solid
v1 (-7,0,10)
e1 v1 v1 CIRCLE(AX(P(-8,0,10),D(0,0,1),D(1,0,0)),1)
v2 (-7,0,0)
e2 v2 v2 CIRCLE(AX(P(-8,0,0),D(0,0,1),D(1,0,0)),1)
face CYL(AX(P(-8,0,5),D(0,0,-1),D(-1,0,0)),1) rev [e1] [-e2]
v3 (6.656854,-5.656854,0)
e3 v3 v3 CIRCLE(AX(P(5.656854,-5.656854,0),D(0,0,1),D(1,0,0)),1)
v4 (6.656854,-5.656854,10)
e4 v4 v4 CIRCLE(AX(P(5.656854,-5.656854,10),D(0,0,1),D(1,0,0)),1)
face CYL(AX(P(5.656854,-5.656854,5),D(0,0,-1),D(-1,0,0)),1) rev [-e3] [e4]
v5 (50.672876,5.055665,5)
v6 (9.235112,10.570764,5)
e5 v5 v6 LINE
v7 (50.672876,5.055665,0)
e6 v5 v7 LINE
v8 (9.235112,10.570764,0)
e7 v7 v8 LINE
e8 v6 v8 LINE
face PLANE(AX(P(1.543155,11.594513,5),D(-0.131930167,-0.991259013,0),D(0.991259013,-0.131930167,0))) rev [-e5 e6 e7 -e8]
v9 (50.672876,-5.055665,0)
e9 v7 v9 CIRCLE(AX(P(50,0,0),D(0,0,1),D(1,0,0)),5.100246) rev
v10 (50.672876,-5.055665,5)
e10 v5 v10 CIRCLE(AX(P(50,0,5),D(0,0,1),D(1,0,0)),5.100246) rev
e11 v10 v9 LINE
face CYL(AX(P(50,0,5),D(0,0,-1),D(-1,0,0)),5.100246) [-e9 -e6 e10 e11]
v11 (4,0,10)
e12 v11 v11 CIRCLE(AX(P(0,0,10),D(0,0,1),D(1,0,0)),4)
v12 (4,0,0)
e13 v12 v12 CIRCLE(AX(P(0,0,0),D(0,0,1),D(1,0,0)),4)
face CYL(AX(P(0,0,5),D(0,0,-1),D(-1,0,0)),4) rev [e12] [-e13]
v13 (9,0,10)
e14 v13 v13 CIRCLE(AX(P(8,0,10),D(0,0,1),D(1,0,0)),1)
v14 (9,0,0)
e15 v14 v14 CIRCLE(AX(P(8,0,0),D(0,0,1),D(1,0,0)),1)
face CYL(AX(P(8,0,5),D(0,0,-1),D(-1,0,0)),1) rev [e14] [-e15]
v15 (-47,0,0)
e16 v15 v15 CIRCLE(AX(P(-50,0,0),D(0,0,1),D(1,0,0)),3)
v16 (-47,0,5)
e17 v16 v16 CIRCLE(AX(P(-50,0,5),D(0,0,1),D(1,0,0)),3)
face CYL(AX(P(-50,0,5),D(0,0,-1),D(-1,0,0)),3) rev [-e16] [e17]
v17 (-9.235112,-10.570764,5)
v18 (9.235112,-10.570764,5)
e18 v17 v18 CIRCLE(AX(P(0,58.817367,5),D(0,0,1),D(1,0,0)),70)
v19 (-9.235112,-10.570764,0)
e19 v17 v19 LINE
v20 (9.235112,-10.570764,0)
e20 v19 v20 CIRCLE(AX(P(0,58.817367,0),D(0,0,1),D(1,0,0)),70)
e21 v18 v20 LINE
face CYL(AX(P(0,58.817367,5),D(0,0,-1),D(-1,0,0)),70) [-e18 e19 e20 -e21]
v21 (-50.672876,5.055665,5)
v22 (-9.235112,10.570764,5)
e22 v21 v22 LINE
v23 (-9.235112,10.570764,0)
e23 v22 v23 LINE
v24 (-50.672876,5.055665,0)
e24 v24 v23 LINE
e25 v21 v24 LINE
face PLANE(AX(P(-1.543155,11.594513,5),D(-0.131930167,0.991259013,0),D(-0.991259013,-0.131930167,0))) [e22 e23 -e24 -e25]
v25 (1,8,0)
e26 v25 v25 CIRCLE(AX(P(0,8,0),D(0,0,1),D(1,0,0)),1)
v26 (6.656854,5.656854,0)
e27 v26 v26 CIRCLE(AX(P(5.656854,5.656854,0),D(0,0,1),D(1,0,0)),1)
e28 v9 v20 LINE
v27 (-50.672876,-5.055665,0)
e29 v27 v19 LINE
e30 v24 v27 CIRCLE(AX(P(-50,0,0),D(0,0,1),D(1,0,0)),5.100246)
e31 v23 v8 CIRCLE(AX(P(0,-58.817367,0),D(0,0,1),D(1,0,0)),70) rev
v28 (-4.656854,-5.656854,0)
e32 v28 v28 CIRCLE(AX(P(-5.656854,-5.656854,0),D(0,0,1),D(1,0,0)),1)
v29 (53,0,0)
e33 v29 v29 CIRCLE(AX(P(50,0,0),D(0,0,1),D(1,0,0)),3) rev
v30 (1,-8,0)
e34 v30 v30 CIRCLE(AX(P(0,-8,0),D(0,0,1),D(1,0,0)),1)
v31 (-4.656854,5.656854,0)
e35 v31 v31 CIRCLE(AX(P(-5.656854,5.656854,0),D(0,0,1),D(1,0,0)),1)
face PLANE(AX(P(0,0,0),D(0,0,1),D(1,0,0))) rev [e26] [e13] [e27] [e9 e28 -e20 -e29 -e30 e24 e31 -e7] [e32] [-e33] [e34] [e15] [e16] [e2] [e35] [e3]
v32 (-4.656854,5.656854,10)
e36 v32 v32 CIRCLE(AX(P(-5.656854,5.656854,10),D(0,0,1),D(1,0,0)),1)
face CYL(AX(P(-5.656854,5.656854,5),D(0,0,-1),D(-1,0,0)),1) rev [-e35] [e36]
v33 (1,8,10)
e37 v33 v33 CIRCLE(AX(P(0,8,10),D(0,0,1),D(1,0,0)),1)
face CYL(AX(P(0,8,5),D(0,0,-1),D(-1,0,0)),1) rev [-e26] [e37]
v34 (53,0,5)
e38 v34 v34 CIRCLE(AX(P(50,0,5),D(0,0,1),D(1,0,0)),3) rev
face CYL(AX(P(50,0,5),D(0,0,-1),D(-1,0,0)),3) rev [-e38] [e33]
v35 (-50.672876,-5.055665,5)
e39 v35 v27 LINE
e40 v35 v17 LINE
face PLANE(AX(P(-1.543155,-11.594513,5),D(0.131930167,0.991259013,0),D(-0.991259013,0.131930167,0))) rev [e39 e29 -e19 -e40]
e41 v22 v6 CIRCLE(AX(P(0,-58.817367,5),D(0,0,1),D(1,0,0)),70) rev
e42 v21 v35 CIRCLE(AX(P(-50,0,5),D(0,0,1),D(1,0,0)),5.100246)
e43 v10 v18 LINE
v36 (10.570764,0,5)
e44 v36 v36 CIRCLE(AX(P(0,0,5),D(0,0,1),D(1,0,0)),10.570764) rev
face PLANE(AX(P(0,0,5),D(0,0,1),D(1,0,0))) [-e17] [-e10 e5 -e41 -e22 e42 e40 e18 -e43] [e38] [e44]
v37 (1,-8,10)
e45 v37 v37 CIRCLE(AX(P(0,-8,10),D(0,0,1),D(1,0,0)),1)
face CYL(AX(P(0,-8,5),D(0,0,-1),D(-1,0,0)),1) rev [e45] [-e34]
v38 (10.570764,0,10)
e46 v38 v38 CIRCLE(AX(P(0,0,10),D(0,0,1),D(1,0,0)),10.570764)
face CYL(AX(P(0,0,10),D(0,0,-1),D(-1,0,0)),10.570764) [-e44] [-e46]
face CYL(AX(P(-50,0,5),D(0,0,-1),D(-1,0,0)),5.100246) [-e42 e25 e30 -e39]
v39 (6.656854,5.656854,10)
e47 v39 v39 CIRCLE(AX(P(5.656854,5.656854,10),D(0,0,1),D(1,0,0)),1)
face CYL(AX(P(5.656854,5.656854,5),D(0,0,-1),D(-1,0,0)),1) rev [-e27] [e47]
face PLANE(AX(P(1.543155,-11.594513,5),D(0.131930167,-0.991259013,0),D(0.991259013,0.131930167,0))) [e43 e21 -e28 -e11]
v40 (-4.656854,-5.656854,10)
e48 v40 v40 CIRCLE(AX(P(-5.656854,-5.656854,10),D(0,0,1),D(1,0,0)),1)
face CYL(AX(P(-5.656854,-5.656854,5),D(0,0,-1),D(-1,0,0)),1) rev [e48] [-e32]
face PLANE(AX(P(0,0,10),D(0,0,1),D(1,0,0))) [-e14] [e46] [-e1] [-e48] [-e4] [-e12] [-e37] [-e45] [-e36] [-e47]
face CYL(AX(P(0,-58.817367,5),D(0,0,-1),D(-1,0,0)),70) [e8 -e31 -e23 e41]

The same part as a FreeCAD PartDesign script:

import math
import FreeCAD as App
import Part
import Sketcher

doc = App.newDocument("Part")
body = doc.addObject("PartDesign::Body", "Body")

sketch1 = doc.addObject("Sketcher::SketchObject", "Sketch")
body.addObject(sketch1)
sketch1.AttachmentSupport = (doc.XY_Plane, [""])
sketch1.MapMode = "FlatFace"
sketch1.addGeometry([
    Part.LineSegment(App.Vector(-50.7, -5.1, 0), App.Vector(-9.2, -10.6, 0)),
    Part.ArcOfCircle(Part.Circle(App.Vector(0, 58.8, 0), App.Vector(0, 0, 1), 70), math.radians(-97.58), math.radians(-82.42)),
    Part.LineSegment(App.Vector(9.2, -10.6, 0), App.Vector(50.7, -5.1, 0)),
    Part.ArcOfCircle(Part.Circle(App.Vector(50, 0, 0), App.Vector(0, 0, 1), 5.1), math.radians(-82), math.radians(82)),
    Part.LineSegment(App.Vector(50.7, 5.1, 0), App.Vector(9.2, 10.6, 0)),
    Part.ArcOfCircle(Part.Circle(App.Vector(0, -58.8, 0), App.Vector(0, 0, 1), 70), math.radians(82.42), math.radians(97.58)),
    Part.LineSegment(App.Vector(-9.2, 10.6, 0), App.Vector(-50.7, 5.1, 0)),
    Part.ArcOfCircle(Part.Circle(App.Vector(-50, 0, 0), App.Vector(0, 0, 1), 5.1), math.radians(98), math.radians(262)),
    Part.Circle(App.Vector(-5.7, -5.7, 0), App.Vector(0, 0, 1), 1),
    Part.Circle(App.Vector(0, -8, 0), App.Vector(0, 0, 1), 1),
    Part.Circle(App.Vector(5.7, -5.7, 0), App.Vector(0, 0, 1), 1),
    Part.Circle(App.Vector(-50, 0, 0), App.Vector(0, 0, 1), 3),
    Part.Circle(App.Vector(-8, 0, 0), App.Vector(0, 0, 1), 1),
    Part.Circle(App.Vector(-5.7, 5.7, 0), App.Vector(0, 0, 1), 1),
    Part.Circle(App.Vector(0, 0, 0), App.Vector(0, 0, 1), 4),
    Part.Circle(App.Vector(8, 0, 0), App.Vector(0, 0, 1), 1),
    Part.Circle(App.Vector(50, 0, 0), App.Vector(0, 0, 1), 3),
    Part.Circle(App.Vector(5.7, 5.7, 0), App.Vector(0, 0, 1), 1),
    Part.Circle(App.Vector(0, 8, 0), App.Vector(0, 0, 1), 1),
], False)
sketch1.addConstraint([
    Sketcher.Constraint("Tangent", 0, 2, 1, 1),
    Sketcher.Constraint("Tangent", 1, 2, 2, 1),
    Sketcher.Constraint("Tangent", 2, 2, 3, 1),
    Sketcher.Constraint("Tangent", 3, 2, 4, 1),
    Sketcher.Constraint("Tangent", 4, 2, 5, 1),
    Sketcher.Constraint("Tangent", 5, 2, 6, 1),
    Sketcher.Constraint("Tangent", 6, 2, 7, 1),
    Sketcher.Constraint("Tangent", 7, 2, 0, 1),
    Sketcher.Constraint("Coincident", 14, 3, -1, 1),
    Sketcher.Constraint("Coincident", 11, 3, 7, 3),
    Sketcher.Constraint("Coincident", 16, 3, 3, 3),
    Sketcher.Constraint("Equal", 1, 5),
    Sketcher.Constraint("Equal", 3, 7),
    Sketcher.Constraint("Equal", 8, 9),
    Sketcher.Constraint("Equal", 9, 10),
    Sketcher.Constraint("Equal", 10, 12),
    Sketcher.Constraint("Equal", 12, 13),
    Sketcher.Constraint("Equal", 13, 15),
    Sketcher.Constraint("Equal", 11, 16),
    Sketcher.Constraint("Equal", 15, 17),
    Sketcher.Constraint("Equal", 17, 18),
    Sketcher.Constraint("Symmetric", 1, 3, 5, 3, -1, 1),
    Sketcher.Constraint("Symmetric", 3, 3, 7, 3, -1, 1),
    Sketcher.Constraint("Symmetric", 10, 3, 13, 3, -1, 1),
    Sketcher.Constraint("Symmetric", 12, 3, 15, 3, -1, 1),
    Sketcher.Constraint("Symmetric", 8, 3, 17, 3, -1, 1),
    Sketcher.Constraint("Symmetric", 9, 3, 18, 3, -1, 1),
    Sketcher.Constraint("Symmetric", 8, 3, 10, 3, -2),
    Sketcher.Constraint("Symmetric", 0, 2, 1, 2, -2),
    Sketcher.Constraint("PointOnObject", 9, 3, -2),
    Sketcher.Constraint("PointOnObject", 12, 3, -1),
    Sketcher.Constraint("Diameter", 8, 2.0),
    Sketcher.Constraint("Diameter", 11, 6.0),
    Sketcher.Constraint("Diameter", 14, 8.0),
    Sketcher.Constraint("Radius", 1, 70.0),
    Sketcher.Constraint("DistanceX", -1, 1, 3, 3, 50.0),
    Sketcher.Constraint("DistanceY", 9, 3, -1, 1, 8.0),
    Sketcher.Constraint("DistanceX", 12, 3, -1, 1, 8.0),
    Sketcher.Constraint("Radius", 3, 5.100246),
    Sketcher.Constraint("DistanceY", 1, 2, 2, 2, 5.515099),
    Sketcher.Constraint("DistanceY", 8, 3, 1, 3, 64.474221),
    Sketcher.Constraint("DistanceX", 8, 3, 10, 3, 11.313708),
])
pad1 = doc.addObject("PartDesign::Pad", "Pad")
body.addObject(pad1)
pad1.Profile = sketch1
pad1.Length = 5

sketch2 = doc.addObject("Sketcher::SketchObject", "Sketch001")
body.addObject(sketch2)
sketch2.AttachmentSupport = (doc.XY_Plane, [""])
sketch2.MapMode = "FlatFace"
sketch2.addGeometry([
    Part.Circle(App.Vector(0, 0, 0), App.Vector(0, 0, 1), 10.6),
    Part.Circle(App.Vector(-5.7, -5.7, 0), App.Vector(0, 0, 1), 1),
    Part.Circle(App.Vector(0, -8, 0), App.Vector(0, 0, 1), 1),
    Part.Circle(App.Vector(5.7, -5.7, 0), App.Vector(0, 0, 1), 1),
    Part.Circle(App.Vector(-8, 0, 0), App.Vector(0, 0, 1), 1),
    Part.Circle(App.Vector(-5.7, 5.7, 0), App.Vector(0, 0, 1), 1),
    Part.Circle(App.Vector(0, 0, 0), App.Vector(0, 0, 1), 4),
    Part.Circle(App.Vector(8, 0, 0), App.Vector(0, 0, 1), 1),
    Part.Circle(App.Vector(0, 8, 0), App.Vector(0, 0, 1), 1),
    Part.Circle(App.Vector(5.7, 5.7, 0), App.Vector(0, 0, 1), 1),
], False)
sketch2.addConstraint([
    Sketcher.Constraint("Coincident", 0, 3, -1, 1),
    Sketcher.Constraint("Coincident", 6, 3, -1, 1),
    Sketcher.Constraint("Equal", 1, 2),
    Sketcher.Constraint("Equal", 2, 3),
    Sketcher.Constraint("Equal", 3, 4),
    Sketcher.Constraint("Equal", 4, 5),
    Sketcher.Constraint("Equal", 5, 7),
    Sketcher.Constraint("Equal", 7, 8),
    Sketcher.Constraint("Equal", 8, 9),
    Sketcher.Constraint("Symmetric", 3, 3, 5, 3, -1, 1),
    Sketcher.Constraint("Symmetric", 4, 3, 7, 3, -1, 1),
    Sketcher.Constraint("Symmetric", 2, 3, 8, 3, -1, 1),
    Sketcher.Constraint("Symmetric", 1, 3, 9, 3, -1, 1),
    Sketcher.Constraint("Symmetric", 1, 3, 3, 3, -2),
    Sketcher.Constraint("PointOnObject", 2, 3, -2),
    Sketcher.Constraint("PointOnObject", 4, 3, -1),
    Sketcher.Constraint("Diameter", 1, 2.0),
    Sketcher.Constraint("Diameter", 6, 8.0),
    Sketcher.Constraint("DistanceY", 2, 3, -1, 1, 8.0),
    Sketcher.Constraint("DistanceX", 4, 3, -1, 1, 8.0),
    Sketcher.Constraint("Diameter", 0, 21.141528),
    Sketcher.Constraint("DistanceX", 1, 3, 3, 3, 11.313708),
    Sketcher.Constraint("DistanceY", 1, 3, 5, 3, 11.313708),
])
pad2 = doc.addObject("PartDesign::Pad", "Pad001")
body.addObject(pad2)
pad2.Profile = sketch2
pad2.Length = 10

doc.recompute()
